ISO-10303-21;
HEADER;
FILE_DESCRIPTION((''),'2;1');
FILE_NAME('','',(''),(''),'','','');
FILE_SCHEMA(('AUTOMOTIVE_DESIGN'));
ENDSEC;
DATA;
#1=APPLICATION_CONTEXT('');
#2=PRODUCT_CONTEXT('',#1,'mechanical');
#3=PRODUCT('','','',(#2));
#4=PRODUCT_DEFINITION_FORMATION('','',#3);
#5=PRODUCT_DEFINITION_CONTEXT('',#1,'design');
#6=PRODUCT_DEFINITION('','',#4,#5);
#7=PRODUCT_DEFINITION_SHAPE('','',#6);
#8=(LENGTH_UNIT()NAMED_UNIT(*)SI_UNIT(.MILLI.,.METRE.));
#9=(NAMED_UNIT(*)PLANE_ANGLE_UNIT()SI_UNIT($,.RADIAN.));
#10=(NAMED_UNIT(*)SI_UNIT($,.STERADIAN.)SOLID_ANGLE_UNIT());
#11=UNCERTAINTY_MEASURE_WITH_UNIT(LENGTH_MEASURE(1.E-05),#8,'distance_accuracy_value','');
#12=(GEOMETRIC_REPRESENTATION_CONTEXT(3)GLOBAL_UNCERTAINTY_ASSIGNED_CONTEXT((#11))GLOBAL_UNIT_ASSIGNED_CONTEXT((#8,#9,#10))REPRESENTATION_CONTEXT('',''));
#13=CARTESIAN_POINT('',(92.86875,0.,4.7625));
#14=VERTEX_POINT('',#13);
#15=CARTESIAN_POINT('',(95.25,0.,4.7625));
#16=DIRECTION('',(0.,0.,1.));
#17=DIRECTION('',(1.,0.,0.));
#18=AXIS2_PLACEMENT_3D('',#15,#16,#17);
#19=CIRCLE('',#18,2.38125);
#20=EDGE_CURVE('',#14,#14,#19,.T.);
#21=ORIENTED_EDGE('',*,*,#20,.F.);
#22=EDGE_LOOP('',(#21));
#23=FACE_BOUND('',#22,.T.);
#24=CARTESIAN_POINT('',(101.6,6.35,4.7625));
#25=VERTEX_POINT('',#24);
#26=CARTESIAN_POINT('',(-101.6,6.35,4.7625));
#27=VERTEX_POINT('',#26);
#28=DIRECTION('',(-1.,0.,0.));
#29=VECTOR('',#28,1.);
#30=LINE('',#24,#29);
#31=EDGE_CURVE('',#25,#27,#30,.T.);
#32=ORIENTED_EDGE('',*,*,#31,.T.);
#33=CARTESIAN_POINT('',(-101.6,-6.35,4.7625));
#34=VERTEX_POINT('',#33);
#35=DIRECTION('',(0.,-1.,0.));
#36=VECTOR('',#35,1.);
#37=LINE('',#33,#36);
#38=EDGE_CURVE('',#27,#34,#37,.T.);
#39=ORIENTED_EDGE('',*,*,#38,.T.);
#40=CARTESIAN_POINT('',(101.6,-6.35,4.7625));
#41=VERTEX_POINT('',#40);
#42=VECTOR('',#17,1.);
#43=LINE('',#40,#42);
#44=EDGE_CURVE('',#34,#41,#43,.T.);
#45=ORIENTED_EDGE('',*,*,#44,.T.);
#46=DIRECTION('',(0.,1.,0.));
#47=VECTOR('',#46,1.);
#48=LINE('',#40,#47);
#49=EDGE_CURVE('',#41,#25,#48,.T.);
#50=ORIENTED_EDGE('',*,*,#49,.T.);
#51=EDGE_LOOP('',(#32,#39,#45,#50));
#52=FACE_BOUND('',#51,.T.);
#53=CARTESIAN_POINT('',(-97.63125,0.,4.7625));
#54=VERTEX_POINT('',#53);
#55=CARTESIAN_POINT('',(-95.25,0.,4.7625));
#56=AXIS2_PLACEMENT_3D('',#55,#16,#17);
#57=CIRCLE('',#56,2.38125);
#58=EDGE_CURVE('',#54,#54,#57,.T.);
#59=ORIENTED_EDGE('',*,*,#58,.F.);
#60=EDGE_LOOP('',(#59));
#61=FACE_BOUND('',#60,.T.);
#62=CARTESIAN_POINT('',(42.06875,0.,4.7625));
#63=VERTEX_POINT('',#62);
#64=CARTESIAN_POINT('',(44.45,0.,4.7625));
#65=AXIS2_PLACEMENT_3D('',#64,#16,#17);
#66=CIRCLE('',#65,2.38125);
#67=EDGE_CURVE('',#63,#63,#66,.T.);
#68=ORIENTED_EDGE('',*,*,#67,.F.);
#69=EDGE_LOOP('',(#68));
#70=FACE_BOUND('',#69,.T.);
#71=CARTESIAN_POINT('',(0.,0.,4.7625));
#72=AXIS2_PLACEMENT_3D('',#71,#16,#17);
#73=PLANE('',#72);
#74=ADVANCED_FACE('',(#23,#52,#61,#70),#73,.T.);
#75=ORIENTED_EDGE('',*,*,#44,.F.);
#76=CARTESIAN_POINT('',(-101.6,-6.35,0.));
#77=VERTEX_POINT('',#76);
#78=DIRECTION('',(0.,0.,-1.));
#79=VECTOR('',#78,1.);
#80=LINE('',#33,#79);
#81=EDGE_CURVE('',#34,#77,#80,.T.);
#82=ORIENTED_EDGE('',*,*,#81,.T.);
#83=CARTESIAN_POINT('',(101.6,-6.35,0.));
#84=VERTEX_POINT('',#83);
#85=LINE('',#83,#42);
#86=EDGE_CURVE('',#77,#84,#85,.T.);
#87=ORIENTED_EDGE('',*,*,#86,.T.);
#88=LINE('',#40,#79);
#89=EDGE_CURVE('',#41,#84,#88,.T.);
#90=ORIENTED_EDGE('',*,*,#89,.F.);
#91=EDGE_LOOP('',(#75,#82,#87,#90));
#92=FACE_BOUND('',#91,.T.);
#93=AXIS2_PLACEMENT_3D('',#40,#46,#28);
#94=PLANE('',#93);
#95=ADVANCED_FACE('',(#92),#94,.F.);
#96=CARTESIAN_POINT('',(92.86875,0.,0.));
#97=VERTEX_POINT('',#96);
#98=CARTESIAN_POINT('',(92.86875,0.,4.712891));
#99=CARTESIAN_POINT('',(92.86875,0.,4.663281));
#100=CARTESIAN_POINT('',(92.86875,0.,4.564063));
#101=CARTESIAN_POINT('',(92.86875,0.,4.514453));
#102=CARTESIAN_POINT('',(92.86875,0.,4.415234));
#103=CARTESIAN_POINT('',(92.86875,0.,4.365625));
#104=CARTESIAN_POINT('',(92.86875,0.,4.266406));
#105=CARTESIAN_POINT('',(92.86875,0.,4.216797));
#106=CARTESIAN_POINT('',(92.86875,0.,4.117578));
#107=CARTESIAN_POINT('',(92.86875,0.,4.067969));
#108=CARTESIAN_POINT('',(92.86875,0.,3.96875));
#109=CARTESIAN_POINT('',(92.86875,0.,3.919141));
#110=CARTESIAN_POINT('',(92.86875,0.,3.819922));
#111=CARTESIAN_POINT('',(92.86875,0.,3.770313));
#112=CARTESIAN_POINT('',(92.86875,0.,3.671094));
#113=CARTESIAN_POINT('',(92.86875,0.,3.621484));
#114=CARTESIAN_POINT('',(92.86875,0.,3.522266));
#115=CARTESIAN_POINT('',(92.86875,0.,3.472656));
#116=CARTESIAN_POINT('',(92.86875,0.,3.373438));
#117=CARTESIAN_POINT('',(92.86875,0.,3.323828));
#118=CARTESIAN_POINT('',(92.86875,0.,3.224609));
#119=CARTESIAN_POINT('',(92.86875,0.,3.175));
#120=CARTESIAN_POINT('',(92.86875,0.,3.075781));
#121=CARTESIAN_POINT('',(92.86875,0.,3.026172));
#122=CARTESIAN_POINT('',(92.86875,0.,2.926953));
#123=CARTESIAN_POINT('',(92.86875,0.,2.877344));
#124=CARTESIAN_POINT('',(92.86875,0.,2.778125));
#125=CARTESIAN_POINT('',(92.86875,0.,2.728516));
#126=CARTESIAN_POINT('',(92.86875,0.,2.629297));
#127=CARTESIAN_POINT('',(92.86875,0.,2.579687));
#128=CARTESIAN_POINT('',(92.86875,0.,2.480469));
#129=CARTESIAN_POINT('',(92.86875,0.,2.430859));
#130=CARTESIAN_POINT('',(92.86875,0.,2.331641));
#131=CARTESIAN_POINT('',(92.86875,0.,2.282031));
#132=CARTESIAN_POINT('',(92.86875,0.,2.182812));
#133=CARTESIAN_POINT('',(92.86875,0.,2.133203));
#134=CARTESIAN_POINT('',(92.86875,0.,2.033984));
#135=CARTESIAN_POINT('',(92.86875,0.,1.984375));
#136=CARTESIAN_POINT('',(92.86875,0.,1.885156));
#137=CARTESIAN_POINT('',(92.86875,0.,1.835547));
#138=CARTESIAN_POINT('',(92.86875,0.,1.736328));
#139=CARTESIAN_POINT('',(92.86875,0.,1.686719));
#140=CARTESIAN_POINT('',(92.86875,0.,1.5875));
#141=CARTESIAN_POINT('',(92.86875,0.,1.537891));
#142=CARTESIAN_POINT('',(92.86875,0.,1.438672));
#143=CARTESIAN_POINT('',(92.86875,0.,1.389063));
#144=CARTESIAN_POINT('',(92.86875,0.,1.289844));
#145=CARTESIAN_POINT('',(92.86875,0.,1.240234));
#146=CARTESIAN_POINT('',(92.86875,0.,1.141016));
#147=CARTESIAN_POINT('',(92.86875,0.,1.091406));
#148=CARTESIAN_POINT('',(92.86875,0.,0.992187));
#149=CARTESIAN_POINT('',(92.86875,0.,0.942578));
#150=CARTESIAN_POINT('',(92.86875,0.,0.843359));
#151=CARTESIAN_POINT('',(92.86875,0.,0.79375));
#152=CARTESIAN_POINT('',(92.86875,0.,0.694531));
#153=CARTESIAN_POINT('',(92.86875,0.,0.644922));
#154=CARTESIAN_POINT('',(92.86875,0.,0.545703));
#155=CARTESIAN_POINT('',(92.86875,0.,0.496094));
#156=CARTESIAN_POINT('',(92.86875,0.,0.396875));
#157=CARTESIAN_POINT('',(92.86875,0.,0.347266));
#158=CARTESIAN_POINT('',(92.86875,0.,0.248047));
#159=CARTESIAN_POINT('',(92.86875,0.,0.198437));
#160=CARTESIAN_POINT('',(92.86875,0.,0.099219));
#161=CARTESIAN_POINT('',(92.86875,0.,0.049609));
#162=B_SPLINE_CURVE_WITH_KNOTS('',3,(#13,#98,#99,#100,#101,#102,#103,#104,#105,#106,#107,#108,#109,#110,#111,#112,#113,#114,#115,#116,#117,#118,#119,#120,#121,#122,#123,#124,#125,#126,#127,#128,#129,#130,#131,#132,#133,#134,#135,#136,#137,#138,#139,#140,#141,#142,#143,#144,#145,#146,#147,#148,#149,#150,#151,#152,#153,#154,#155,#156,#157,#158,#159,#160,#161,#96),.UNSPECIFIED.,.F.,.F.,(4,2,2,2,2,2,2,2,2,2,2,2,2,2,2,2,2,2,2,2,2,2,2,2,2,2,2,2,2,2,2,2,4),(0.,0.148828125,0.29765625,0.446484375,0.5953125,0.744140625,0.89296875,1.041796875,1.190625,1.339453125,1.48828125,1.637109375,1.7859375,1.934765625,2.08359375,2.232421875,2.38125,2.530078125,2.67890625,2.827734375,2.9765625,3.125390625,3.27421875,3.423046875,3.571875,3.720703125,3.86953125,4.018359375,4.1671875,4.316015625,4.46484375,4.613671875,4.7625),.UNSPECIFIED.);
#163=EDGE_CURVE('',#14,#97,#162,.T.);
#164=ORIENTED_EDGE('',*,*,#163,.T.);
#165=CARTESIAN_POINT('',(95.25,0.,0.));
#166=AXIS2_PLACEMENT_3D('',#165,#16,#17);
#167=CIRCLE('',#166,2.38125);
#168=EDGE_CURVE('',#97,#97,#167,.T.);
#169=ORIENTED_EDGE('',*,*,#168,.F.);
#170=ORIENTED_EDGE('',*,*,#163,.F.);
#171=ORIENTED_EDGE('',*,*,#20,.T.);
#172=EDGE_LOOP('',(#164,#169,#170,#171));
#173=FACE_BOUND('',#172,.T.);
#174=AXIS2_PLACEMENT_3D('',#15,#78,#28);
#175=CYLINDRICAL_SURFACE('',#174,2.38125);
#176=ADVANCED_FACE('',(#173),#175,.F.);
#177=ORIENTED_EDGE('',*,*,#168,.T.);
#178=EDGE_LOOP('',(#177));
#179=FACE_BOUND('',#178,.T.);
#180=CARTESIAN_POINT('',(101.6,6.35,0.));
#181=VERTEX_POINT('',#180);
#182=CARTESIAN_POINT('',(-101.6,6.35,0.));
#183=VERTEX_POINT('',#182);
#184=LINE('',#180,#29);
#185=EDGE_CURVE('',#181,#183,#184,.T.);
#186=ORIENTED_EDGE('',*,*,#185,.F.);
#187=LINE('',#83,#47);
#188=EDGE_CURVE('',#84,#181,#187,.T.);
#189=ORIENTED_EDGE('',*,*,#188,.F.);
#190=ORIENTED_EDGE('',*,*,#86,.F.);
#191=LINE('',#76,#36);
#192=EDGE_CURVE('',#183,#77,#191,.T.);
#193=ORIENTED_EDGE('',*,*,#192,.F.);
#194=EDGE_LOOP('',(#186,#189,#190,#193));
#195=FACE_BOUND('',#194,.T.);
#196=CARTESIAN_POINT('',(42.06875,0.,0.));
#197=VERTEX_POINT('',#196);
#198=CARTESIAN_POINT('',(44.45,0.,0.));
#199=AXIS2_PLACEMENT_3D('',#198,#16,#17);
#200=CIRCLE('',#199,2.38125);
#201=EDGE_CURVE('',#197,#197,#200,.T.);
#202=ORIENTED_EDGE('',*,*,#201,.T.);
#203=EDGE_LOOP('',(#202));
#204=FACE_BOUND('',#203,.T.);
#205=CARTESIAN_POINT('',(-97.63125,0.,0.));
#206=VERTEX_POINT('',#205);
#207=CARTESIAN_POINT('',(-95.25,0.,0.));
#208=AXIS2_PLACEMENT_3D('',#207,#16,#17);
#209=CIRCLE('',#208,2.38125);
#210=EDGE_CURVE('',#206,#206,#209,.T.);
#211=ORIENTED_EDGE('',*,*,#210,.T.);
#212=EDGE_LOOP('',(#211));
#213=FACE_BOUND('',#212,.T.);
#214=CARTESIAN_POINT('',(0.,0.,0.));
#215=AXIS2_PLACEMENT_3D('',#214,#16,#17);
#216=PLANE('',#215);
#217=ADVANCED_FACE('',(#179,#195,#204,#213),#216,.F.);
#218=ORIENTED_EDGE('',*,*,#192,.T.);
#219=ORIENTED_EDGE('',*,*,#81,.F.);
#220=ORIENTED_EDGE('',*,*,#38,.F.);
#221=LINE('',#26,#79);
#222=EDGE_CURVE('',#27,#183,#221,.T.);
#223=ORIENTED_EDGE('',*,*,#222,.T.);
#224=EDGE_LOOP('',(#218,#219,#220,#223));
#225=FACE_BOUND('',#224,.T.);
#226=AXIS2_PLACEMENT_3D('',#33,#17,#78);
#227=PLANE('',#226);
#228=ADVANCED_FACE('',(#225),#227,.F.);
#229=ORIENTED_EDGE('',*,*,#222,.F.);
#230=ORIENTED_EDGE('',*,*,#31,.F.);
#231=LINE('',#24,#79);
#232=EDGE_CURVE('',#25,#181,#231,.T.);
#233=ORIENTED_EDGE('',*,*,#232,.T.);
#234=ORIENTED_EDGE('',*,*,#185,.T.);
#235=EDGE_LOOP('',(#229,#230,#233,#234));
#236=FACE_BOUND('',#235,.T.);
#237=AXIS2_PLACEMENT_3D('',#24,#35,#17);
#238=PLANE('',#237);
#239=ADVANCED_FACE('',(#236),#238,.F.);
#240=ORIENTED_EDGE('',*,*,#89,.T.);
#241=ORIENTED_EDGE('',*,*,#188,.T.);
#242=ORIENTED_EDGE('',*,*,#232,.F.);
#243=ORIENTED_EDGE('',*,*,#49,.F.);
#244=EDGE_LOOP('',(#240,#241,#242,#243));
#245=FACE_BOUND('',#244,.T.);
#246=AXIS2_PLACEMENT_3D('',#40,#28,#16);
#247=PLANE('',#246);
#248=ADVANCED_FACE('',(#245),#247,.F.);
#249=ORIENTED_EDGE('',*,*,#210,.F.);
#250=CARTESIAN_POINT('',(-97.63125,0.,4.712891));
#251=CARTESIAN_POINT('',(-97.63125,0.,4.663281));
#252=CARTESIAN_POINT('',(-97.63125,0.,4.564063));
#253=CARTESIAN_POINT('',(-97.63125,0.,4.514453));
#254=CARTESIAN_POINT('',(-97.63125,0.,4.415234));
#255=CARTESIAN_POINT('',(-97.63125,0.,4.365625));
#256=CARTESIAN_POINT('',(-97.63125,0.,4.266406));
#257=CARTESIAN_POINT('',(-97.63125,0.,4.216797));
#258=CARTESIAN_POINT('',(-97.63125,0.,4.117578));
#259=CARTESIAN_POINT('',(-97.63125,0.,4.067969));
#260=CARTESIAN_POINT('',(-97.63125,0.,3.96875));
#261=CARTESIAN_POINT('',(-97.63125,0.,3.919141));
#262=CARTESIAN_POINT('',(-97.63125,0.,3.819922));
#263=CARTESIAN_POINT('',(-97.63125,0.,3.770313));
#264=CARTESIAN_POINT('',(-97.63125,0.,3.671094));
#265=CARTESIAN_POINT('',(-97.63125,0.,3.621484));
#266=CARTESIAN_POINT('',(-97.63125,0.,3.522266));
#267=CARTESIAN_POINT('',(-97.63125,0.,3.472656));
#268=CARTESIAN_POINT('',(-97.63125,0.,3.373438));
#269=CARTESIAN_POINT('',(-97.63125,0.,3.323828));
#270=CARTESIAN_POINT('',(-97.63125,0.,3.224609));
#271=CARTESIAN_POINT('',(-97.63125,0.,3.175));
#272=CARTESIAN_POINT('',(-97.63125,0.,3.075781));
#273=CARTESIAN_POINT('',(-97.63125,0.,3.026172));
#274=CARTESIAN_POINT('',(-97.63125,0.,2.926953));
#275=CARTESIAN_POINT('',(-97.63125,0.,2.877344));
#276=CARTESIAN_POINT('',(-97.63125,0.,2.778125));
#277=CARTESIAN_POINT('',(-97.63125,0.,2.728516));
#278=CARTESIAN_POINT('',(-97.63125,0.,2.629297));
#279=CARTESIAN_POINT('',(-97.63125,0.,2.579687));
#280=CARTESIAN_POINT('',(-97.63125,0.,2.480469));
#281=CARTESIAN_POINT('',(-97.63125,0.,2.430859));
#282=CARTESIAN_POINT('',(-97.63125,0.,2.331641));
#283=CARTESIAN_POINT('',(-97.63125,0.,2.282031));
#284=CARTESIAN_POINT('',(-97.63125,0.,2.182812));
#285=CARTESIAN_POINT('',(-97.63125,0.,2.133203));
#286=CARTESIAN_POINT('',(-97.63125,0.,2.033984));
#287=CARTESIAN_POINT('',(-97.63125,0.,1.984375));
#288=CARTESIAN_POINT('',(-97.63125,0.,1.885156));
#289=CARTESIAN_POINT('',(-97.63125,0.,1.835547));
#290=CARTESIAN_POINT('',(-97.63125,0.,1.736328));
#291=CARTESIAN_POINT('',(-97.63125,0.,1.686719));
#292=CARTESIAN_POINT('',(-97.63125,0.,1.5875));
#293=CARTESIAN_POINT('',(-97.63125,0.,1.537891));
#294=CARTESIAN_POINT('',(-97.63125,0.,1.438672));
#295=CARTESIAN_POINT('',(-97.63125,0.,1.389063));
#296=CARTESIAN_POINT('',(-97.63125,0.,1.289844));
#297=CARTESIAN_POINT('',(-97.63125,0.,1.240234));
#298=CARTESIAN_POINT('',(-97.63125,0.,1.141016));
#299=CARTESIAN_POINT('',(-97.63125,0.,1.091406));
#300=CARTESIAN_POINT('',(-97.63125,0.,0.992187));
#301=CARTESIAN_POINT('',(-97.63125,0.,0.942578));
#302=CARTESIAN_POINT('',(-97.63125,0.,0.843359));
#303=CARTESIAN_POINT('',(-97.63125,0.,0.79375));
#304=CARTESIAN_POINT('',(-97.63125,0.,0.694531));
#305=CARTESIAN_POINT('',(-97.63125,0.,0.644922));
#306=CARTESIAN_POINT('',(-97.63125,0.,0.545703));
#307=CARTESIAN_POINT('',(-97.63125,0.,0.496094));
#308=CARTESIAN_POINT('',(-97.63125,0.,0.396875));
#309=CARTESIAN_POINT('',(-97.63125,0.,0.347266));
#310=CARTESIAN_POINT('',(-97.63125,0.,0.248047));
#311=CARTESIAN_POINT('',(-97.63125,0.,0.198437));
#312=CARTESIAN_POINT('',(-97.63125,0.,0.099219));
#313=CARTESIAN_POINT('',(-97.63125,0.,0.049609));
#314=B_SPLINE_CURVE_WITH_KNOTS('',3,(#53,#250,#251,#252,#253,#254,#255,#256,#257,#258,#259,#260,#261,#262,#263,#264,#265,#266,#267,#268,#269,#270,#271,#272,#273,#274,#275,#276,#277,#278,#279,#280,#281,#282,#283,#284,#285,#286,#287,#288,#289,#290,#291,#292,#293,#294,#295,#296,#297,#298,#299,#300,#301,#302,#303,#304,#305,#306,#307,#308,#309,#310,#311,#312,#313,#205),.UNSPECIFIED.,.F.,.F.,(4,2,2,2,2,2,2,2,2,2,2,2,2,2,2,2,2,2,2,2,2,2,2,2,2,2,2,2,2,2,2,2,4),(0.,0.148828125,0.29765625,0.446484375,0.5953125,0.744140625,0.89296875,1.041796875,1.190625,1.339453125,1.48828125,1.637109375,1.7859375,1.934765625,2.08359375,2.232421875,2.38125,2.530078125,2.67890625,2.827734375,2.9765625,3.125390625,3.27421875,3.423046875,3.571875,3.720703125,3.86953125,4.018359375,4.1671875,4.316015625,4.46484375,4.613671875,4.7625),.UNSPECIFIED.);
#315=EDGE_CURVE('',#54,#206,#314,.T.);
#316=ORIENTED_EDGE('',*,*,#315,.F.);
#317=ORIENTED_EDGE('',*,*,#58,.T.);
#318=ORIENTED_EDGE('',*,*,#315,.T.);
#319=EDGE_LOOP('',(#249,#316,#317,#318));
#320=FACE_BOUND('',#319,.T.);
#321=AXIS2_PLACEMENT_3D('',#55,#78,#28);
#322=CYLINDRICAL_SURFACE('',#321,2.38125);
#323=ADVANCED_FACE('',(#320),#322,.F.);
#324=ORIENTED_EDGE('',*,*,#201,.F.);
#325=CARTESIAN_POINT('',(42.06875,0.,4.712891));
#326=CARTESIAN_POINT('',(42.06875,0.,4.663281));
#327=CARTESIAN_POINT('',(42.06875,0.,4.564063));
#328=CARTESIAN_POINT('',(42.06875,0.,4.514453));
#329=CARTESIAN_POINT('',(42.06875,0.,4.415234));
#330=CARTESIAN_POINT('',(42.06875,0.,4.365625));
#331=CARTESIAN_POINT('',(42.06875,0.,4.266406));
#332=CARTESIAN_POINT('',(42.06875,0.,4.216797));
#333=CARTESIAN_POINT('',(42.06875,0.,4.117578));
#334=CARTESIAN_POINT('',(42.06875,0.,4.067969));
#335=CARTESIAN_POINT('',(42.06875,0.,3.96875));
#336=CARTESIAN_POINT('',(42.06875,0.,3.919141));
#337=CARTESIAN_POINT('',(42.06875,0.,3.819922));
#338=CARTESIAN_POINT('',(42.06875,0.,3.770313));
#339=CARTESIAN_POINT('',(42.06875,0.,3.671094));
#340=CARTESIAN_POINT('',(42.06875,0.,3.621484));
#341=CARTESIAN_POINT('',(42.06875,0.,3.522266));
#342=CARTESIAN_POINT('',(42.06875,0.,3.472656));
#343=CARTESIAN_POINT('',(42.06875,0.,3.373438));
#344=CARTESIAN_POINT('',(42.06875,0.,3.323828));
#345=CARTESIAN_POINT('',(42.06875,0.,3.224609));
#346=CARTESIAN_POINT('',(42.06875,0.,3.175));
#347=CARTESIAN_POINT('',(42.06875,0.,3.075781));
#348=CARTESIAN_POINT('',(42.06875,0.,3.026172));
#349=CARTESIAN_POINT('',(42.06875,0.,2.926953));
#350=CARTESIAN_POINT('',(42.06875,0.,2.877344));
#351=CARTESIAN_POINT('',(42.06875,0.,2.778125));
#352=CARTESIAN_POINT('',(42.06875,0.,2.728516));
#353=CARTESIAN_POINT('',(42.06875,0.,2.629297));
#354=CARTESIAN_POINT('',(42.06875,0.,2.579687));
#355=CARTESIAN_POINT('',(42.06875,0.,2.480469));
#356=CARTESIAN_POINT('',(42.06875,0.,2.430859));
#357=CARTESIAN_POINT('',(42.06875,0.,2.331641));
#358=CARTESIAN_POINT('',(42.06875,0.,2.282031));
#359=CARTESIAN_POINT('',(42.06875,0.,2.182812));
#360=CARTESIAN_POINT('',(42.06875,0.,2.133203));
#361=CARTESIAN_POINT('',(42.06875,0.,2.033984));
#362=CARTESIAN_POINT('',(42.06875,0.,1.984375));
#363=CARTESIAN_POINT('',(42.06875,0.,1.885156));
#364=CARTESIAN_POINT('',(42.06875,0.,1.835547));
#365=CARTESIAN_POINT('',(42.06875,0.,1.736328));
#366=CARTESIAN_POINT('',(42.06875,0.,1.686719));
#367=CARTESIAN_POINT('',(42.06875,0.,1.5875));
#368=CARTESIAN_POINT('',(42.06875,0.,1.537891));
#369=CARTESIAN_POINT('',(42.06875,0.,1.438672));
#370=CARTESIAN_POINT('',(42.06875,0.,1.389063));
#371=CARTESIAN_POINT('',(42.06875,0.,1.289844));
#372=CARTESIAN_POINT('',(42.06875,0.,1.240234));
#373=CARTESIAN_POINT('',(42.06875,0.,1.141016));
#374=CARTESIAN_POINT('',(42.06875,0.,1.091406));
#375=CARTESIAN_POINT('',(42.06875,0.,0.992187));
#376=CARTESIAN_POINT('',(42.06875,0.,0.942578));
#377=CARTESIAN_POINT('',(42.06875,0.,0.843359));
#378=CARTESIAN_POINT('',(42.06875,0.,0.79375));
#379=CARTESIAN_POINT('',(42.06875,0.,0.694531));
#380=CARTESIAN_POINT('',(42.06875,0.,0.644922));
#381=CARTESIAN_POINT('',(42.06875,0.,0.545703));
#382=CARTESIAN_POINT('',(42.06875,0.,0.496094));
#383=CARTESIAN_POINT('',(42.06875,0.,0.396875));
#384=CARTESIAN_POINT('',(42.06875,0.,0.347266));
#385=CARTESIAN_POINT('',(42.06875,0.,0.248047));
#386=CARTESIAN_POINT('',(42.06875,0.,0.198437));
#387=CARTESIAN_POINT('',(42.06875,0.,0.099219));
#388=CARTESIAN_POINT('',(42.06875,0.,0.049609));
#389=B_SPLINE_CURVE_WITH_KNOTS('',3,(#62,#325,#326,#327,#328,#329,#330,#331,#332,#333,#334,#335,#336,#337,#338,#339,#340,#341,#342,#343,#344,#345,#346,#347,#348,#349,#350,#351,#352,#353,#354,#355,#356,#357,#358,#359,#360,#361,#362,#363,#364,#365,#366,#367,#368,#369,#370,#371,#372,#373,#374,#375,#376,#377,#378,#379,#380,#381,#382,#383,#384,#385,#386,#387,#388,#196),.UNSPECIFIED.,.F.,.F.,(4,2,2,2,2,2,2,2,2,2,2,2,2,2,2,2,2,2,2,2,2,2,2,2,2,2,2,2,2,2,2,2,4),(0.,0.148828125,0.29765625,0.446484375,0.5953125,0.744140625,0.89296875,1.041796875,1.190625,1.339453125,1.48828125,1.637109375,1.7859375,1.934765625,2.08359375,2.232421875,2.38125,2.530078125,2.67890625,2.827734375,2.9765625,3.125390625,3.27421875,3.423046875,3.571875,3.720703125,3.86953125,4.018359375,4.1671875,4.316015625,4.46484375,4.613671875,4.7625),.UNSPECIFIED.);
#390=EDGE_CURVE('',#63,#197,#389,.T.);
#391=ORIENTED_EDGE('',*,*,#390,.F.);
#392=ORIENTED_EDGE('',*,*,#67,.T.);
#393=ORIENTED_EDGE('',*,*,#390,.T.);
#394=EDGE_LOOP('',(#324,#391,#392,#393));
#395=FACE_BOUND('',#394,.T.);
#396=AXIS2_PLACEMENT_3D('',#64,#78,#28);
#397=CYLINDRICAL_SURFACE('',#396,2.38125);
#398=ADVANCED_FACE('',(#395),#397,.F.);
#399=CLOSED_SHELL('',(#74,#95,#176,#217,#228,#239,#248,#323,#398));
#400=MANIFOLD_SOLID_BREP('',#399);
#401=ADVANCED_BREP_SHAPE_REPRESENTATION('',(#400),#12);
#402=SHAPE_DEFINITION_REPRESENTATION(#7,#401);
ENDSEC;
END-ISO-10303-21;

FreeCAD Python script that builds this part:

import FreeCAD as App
import Part
import Sketcher

V = App.Vector
Q = App.Units.Quantity

doc = App.newDocument("Part")
body = doc.addObject("PartDesign::Body", "Body")

sketch1 = body.newObject("Sketcher::SketchObject", "Sketch")
sketch1.AttachmentSupport = (doc.getObject("XY_Plane"), [""])
sketch1.MapMode = "FlatFace"
sketch1.addGeometry([
    Part.LineSegment(V(-101.6, 6.3, 0), V(-101.6, -6.3, 0)),
    Part.LineSegment(V(-101.6, -6.3, 0), V(101.6, -6.3, 0)),
    Part.LineSegment(V(101.6, -6.3, 0), V(101.6, 6.3, 0)),
    Part.LineSegment(V(101.6, 6.3, 0), V(-101.6, 6.3, 0)),
    Part.Circle(V(-95.2, 0, 0), V(0, 0, 1), 2.4),
    Part.Circle(V(44.5, 0, 0), V(0, 0, 1), 2.4),
    Part.Circle(V(95.2, 0, 0), V(0, 0, 1), 2.4),
], False)
sketch1.addConstraint([
    Sketcher.Constraint("Coincident", 0, 2, 1, 1),
    Sketcher.Constraint("Coincident", 1, 2, 2, 1),
    Sketcher.Constraint("Coincident", 2, 2, 3, 1),
    Sketcher.Constraint("Coincident", 3, 2, 0, 1),
    Sketcher.Constraint("Vertical", 0),
    Sketcher.Constraint("Horizontal", 1),
    Sketcher.Constraint("Vertical", 2),
    Sketcher.Constraint("Horizontal", 3),
    Sketcher.Constraint("Equal", 4, 5),
    Sketcher.Constraint("Equal", 5, 6),
    Sketcher.Constraint("Symmetric", 4, 3, 6, 3, -1, 1),
    Sketcher.Constraint("Symmetric", 0, 2, 2, 2, -1, 1),
    Sketcher.Constraint("PointOnObject", 4, 3, -1),
    Sketcher.Constraint("PointOnObject", 5, 3, -1),
    Sketcher.Constraint("DistanceX", 1, 1, 1, 2, Q("8 in")),
    Sketcher.Constraint("Diameter", 4, Q("0.1875 in")),
    Sketcher.Constraint("DistanceY", 0, 2, 0, 1, Q("0.5 in")),
    Sketcher.Constraint("DistanceX", 5, 3, 6, 3, Q("2 in")),
    Sketcher.Constraint("DistanceX", 4, 3, 5, 3, Q("5.5 in")),
])
pad1 = body.newObject("PartDesign::Pad", "Pad")
pad1.Profile = sketch1
pad1.Length = Q("0.1875 in")

doc.recompute()
